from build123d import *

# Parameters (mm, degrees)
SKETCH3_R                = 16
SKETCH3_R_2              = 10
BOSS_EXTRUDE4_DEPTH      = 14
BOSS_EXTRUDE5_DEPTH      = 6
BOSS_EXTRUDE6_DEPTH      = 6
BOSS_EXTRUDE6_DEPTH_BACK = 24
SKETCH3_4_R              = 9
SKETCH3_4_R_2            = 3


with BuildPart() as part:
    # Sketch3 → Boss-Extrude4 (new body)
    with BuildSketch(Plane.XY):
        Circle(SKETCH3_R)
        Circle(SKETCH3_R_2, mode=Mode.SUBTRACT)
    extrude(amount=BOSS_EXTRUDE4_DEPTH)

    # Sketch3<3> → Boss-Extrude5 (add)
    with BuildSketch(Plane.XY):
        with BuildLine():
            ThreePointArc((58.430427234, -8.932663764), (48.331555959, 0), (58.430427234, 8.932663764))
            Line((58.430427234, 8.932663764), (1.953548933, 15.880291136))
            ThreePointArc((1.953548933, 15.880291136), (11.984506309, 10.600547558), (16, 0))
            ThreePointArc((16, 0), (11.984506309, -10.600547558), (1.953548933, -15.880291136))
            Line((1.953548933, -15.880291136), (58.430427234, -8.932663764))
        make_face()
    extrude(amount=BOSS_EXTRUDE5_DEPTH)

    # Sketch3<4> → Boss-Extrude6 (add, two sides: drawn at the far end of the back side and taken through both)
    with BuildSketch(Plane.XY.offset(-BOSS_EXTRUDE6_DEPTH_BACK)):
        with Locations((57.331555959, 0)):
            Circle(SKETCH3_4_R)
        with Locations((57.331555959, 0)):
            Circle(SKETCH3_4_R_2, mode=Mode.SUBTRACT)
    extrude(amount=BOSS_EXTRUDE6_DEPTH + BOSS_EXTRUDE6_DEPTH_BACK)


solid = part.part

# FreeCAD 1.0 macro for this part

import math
import FreeCAD as App
import Part
import Sketcher
Q = App.Units.Quantity

doc = App.newDocument("Part")
body = doc.addObject("PartDesign::Body", "Body")

# Sketch on XY plane
sketch1 = doc.addObject("Sketcher::SketchObject", "Sketch")
body.addObject(sketch1)
sketch1.AttachmentSupport = (doc.XY_Plane, [""])
sketch1.MapMode = "FlatFace"
sketch1.addGeometry([
    Part.Circle(App.Vector(0, 0, 0), App.Vector(0, 0, 1), 16),
    Part.Circle(App.Vector(0, 0, 0), App.Vector(0, 0, 1), 10),
], False)
sketch1.addConstraint([
    Sketcher.Constraint("Coincident", 0, 3, -1, 1),
    Sketcher.Constraint("Coincident", 1, 3, -1, 1),
    Sketcher.Constraint("Diameter", 0, Q("32 mm")),
    Sketcher.Constraint("Diameter", 1, Q("20 mm")),
])
pad1 = doc.addObject("PartDesign::Pad", "Pad")
body.addObject(pad1)
pad1.Profile = sketch1
pad1.Length = 14

# Sketch on XY plane
sketch2 = doc.addObject("Sketcher::SketchObject", "Sketch001")
body.addObject(sketch2)
sketch2.AttachmentSupport = (doc.XY_Plane, [""])
sketch2.MapMode = "FlatFace"
sketch2.addGeometry([
    Part.ArcOfCircle(Part.Circle(App.Vector(57.331556, 0, 0), App.Vector(0, 0, 1), 9), math.radians(82.986869), math.radians(277.013131)),  # 0
    Part.LineSegment(App.Vector(58.430427, 8.932664, 0), App.Vector(1.953549, 15.880291, 0)),  # 1
    Part.ArcOfCircle(Part.Circle(App.Vector(0, 0, 0), App.Vector(0, 0, 1), 16), math.radians(0), math.radians(82.986869)),  # 2
    Part.ArcOfCircle(Part.Circle(App.Vector(0, 0, 0), App.Vector(0, 0, 1), 16), math.radians(-82.986869), math.radians(0)),  # 3
    Part.LineSegment(App.Vector(1.953549, -15.880291, 0), App.Vector(58.430427, -8.932664, 0)),  # 4
], False)
sketch2.addConstraint([
    Sketcher.Constraint("Tangent", 0, 1, 1, 1),
    Sketcher.Constraint("Tangent", 1, 2, 2, 2),
    Sketcher.Constraint("Tangent", 2, 1, 3, 2),
    Sketcher.Constraint("Tangent", 3, 1, 4, 1),
    Sketcher.Constraint("Tangent", 4, 2, 0, 2),
    Sketcher.Constraint("Coincident", 2, 3, -1, 1),
    Sketcher.Constraint("Equal", 2, 3),
    Sketcher.Constraint("PointOnObject", 0, 3, -1),
    Sketcher.Constraint("PointOnObject", 2, 1, -1),
    Sketcher.Constraint("Radius", 0, Q("9 mm")),
    Sketcher.Constraint("Radius", 2, Q("16 mm")),
    Sketcher.Constraint("DistanceX", -1, 1, 1, 2, Q("1.953549 mm")),
])
pad2 = doc.addObject("PartDesign::Pad", "Pad001")
body.addObject(pad2)
pad2.Profile = sketch2
pad2.Length = 6

# Sketch on XY plane
sketch3 = doc.addObject("Sketcher::SketchObject", "Sketch002")
body.addObject(sketch3)
sketch3.AttachmentSupport = (doc.XY_Plane, [""])
sketch3.MapMode = "FlatFace"
sketch3.addGeometry([
    Part.Circle(App.Vector(57.331556, 0, 0), App.Vector(0, 0, 1), 9),
    Part.Circle(App.Vector(57.331556, 0, 0), App.Vector(0, 0, 1), 3),
], False)
sketch3.addConstraint([
    Sketcher.Constraint("Coincident", 1, 3, 0, 3),
    Sketcher.Constraint("PointOnObject", 0, 3, -1),
    Sketcher.Constraint("Diameter", 0, Q("18 mm")),
    Sketcher.Constraint("Diameter", 1, Q("6 mm")),
    Sketcher.Constraint("DistanceX", -1, 1, 0, 3, Q("57.331556 mm")),
])
pad3 = doc.addObject("PartDesign::Pad", "Pad002")
body.addObject(pad3)
pad3.Profile = sketch3
pad3.Type = "TwoLengths"
pad3.Length = 6
pad3.Length2 = 24

doc.recompute()
